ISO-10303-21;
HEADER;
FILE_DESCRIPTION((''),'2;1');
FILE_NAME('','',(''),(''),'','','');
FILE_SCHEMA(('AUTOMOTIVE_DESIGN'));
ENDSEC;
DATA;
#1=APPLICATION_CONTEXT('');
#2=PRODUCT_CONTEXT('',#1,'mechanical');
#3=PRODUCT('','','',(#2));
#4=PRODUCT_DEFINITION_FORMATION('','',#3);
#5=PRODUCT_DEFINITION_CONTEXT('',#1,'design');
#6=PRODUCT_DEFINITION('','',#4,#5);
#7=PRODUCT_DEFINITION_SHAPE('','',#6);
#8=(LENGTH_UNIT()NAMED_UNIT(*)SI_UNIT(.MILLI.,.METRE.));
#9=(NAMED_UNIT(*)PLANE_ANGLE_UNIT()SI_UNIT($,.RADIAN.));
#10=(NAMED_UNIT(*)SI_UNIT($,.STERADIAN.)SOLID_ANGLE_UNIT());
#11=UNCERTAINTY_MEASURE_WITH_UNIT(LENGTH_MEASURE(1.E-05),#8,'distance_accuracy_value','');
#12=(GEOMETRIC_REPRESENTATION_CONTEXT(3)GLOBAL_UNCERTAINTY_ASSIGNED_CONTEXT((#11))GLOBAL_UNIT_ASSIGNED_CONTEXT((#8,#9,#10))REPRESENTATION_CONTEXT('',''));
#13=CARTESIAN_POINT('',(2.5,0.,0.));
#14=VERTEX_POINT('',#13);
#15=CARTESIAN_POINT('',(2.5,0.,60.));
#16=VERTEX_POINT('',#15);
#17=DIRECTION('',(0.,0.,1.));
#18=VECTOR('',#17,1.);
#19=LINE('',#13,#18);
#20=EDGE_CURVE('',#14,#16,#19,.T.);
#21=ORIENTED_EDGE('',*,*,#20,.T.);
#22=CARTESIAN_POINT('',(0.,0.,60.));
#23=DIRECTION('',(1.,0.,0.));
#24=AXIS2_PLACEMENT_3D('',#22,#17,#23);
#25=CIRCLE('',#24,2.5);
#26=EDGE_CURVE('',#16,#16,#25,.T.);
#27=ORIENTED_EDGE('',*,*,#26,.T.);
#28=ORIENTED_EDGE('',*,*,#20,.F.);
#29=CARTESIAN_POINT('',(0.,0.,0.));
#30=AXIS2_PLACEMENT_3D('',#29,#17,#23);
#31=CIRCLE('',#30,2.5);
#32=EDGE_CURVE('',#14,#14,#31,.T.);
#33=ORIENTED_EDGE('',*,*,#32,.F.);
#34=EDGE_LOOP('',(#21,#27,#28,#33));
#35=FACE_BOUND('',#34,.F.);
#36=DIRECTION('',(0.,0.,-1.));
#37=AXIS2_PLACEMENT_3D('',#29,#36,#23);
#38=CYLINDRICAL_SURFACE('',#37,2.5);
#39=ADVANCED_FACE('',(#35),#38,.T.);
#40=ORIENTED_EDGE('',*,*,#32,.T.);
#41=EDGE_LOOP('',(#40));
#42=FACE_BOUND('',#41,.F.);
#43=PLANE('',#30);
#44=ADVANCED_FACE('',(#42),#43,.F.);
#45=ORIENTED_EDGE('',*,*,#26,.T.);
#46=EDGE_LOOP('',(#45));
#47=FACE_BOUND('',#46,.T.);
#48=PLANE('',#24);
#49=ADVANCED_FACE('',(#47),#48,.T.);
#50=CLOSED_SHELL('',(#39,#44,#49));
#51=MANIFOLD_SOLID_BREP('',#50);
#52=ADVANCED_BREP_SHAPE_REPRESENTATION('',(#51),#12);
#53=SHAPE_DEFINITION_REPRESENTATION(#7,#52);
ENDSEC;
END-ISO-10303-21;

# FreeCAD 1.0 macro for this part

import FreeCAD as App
import Part
import Sketcher

V = App.Vector
Q = App.Units.Quantity

doc = App.newDocument("Part")
body = doc.addObject("PartDesign::Body", "Body")

# Sketch on XY plane
sketch1 = body.newObject("Sketcher::SketchObject", "Sketch")
sketch1.AttachmentSupport = (doc.getObject("XY_Plane"), [""])
sketch1.MapMode = "FlatFace"
sketch1.addGeometry(Part.Circle(V(0, 0, 0), V(0, 0, 1), 2.5), False)
sketch1.addConstraint([
    Sketcher.Constraint("Coincident", 0, 3, -1, 1),
    Sketcher.Constraint("Diameter", 0, Q("5 mm")),
])
pad1 = body.newObject("PartDesign::Pad", "Pad")
pad1.Profile = sketch1
pad1.Length = 60

doc.recompute()
